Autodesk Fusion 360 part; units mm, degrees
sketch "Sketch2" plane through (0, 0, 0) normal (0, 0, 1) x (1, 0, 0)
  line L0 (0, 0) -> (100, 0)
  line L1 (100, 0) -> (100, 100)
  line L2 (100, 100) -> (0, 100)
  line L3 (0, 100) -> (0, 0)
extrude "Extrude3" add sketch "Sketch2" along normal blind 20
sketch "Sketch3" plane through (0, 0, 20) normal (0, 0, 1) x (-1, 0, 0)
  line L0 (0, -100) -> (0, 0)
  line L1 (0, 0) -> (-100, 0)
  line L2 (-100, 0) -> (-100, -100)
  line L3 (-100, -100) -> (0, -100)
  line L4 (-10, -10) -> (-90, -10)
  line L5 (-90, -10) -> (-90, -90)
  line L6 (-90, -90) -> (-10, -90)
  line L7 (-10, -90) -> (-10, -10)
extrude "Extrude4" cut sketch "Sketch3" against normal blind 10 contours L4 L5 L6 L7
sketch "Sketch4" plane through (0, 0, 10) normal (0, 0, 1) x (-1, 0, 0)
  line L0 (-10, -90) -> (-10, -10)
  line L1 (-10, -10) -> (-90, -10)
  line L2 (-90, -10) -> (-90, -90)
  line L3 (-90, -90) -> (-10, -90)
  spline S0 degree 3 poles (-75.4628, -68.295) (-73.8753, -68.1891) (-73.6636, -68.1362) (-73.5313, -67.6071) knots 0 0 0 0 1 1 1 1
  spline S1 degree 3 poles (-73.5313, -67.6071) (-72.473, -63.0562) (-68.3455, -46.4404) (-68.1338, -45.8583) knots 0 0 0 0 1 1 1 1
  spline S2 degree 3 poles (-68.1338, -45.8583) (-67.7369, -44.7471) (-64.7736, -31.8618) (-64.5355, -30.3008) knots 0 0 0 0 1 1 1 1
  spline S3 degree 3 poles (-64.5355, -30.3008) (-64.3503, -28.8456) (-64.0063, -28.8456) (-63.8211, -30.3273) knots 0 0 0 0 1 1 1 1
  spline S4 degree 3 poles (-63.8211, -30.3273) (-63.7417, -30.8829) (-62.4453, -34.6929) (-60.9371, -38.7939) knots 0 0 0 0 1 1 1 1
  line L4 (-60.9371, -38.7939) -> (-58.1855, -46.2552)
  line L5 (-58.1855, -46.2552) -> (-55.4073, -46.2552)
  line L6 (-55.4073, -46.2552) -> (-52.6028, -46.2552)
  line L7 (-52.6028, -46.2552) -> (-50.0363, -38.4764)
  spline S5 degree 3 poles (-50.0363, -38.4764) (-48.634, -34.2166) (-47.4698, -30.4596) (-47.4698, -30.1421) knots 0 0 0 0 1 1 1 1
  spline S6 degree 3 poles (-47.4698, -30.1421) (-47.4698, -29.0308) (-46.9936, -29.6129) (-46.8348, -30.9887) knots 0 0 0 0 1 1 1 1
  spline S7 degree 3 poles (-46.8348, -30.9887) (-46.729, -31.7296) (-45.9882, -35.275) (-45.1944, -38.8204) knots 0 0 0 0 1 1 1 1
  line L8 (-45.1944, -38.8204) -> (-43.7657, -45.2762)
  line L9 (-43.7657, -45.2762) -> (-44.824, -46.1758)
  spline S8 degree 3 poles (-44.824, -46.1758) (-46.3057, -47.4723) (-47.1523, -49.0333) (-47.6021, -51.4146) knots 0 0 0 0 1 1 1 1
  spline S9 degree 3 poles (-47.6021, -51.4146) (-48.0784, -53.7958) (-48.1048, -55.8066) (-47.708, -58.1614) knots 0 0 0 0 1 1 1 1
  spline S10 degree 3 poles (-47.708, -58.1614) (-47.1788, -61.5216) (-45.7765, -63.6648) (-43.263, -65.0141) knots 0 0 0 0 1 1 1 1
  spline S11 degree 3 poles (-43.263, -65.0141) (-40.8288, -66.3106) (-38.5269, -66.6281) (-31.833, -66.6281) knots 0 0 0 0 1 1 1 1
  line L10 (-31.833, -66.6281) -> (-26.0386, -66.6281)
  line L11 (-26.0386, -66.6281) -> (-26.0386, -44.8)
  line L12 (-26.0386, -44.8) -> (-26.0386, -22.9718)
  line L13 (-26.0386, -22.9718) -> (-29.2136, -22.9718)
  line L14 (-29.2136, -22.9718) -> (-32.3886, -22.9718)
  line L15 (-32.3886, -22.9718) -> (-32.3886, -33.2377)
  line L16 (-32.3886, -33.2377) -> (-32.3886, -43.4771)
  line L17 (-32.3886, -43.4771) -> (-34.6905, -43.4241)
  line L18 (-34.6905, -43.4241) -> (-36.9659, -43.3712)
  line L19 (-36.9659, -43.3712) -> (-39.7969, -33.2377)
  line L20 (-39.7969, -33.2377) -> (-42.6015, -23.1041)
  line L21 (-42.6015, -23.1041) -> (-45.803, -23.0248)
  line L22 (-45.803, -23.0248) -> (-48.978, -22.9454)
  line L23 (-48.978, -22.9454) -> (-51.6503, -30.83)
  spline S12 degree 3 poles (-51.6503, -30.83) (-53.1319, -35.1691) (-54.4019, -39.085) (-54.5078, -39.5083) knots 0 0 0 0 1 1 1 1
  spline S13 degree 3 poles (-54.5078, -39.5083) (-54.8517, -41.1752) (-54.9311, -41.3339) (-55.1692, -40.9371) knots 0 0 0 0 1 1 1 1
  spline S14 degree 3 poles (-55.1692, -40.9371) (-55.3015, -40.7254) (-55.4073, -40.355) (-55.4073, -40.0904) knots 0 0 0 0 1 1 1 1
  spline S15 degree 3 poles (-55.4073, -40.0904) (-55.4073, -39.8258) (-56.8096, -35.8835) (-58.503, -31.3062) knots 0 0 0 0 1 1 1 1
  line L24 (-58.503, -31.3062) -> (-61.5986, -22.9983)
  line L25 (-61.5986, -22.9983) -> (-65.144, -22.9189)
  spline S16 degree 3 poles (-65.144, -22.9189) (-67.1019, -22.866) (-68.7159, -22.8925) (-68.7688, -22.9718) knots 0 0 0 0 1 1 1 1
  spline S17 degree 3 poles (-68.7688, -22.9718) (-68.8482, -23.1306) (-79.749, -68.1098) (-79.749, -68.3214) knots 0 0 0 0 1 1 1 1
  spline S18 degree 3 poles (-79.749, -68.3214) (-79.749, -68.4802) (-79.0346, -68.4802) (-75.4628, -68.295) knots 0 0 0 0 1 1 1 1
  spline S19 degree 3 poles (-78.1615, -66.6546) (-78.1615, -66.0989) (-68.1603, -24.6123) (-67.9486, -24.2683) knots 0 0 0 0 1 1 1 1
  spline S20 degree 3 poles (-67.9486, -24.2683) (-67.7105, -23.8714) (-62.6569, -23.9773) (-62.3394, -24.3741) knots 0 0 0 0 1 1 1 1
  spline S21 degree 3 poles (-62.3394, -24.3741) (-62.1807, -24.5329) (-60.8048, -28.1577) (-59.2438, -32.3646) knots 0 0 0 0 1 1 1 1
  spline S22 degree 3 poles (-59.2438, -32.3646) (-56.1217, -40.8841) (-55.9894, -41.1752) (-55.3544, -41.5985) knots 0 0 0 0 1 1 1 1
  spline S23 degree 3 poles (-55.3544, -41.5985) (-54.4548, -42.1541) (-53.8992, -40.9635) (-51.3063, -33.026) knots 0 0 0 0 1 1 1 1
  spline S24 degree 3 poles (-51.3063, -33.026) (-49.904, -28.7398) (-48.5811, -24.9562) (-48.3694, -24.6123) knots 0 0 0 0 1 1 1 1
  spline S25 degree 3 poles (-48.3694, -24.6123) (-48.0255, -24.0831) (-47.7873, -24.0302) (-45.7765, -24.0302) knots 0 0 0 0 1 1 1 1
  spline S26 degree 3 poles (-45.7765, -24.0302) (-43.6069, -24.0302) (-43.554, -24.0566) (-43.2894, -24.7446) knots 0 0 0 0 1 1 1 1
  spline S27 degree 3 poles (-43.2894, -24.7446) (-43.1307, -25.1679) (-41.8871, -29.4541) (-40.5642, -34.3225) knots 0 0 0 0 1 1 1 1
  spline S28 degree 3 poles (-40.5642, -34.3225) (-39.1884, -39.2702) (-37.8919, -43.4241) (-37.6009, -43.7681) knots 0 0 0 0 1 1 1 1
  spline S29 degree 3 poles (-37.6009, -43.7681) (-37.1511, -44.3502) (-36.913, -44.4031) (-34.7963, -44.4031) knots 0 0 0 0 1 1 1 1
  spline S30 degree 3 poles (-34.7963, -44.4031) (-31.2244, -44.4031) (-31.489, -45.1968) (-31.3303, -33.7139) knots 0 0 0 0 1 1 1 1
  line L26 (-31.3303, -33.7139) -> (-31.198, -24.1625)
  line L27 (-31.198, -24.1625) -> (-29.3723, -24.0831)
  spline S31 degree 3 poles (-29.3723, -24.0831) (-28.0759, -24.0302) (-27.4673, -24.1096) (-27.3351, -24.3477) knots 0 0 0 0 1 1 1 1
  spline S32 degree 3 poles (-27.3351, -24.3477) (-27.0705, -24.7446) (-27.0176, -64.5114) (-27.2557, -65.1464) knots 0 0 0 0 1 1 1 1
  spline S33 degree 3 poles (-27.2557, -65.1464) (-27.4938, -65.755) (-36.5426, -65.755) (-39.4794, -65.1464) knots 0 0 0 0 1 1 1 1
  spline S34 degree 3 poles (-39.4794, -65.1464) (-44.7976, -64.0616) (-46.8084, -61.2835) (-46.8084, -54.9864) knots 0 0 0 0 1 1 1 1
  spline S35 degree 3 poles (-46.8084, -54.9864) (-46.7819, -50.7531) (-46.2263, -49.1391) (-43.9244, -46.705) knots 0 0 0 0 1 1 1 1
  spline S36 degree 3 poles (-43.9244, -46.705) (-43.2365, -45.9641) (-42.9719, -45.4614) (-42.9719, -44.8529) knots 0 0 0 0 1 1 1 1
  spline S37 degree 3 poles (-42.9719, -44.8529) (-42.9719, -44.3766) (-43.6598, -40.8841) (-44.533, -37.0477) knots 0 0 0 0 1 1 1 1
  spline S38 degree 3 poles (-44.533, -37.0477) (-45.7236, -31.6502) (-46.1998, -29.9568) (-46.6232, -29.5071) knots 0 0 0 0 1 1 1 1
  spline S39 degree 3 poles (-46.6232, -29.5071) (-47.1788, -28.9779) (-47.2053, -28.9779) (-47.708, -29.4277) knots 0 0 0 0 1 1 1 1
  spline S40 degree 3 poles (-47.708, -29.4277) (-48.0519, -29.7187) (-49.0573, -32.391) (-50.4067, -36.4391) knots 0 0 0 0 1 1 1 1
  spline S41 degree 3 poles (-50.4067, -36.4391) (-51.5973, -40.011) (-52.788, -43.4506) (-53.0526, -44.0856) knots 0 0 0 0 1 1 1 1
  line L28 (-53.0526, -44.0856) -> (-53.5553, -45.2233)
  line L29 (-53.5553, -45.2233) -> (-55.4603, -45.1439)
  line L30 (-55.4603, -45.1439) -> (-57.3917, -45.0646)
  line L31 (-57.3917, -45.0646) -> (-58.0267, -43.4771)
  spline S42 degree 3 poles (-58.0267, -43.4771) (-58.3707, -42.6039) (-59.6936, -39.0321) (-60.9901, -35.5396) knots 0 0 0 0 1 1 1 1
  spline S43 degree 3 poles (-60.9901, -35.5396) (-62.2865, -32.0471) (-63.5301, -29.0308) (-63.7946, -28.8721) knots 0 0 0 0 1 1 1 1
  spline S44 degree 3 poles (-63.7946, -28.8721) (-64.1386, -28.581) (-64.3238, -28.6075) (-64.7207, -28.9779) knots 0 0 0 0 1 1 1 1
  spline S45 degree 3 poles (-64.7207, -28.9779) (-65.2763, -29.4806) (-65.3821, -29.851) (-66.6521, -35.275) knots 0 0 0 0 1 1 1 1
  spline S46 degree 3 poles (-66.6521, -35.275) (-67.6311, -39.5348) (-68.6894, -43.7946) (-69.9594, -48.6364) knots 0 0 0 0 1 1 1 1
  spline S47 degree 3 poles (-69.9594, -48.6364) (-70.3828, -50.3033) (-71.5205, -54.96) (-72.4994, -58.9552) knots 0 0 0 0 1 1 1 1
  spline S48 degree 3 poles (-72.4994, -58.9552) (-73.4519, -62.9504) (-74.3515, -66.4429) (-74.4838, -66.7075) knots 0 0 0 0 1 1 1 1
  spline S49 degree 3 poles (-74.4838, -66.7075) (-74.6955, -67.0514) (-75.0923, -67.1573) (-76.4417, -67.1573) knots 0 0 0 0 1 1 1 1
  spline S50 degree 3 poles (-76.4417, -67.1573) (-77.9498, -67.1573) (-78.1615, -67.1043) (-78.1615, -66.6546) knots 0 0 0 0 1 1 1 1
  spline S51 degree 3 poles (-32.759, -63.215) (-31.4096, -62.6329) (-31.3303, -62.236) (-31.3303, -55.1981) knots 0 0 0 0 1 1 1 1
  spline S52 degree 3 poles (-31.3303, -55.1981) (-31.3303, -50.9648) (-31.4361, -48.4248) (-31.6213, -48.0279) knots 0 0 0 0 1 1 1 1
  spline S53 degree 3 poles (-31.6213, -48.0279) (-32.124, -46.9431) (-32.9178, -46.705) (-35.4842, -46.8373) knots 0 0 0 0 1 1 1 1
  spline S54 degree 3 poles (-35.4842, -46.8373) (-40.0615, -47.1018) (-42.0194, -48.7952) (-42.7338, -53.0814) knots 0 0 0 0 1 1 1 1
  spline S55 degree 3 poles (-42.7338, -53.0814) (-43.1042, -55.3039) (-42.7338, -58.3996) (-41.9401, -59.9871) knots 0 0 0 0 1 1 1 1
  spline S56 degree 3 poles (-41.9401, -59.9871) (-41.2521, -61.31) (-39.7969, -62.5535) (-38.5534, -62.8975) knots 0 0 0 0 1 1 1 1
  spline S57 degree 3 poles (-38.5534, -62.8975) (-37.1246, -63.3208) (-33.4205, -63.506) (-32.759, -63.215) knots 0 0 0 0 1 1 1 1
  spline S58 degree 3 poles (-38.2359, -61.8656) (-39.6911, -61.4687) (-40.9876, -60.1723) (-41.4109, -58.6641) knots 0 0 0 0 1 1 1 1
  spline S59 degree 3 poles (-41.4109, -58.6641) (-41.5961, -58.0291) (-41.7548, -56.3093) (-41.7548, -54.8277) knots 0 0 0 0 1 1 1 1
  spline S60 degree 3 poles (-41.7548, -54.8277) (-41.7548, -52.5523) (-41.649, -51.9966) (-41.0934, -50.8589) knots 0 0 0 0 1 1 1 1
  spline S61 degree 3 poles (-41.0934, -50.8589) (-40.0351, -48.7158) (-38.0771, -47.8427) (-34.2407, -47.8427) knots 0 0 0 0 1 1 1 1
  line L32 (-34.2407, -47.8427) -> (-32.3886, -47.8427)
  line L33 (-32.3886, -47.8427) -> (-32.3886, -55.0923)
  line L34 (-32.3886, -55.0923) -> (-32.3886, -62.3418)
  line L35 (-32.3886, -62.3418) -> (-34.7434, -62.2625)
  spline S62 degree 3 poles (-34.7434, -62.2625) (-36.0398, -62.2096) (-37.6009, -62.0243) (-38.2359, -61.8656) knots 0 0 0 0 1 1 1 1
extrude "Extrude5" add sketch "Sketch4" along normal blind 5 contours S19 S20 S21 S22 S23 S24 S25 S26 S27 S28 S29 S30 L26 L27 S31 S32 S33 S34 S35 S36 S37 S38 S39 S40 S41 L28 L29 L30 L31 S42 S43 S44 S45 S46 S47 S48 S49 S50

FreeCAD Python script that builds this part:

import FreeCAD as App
import Part
import Sketcher
from FreeCAD import Vector
Q = App.Units.Quantity

doc = App.newDocument("Part")
params = doc.addObject("Spreadsheet::Sheet", "Params")
for row, (alias, value) in enumerate([
    ("sketch1_width", "100 mm"),
    ("pad1_length", "20 mm"),
    ("sketch2_width", "80 mm"),
    ("pocket1_length", "10 mm"),
    ("pad2_length", "5 mm"),
], start=1):
    params.set(f"A{row}", alias)
    params.set(f"B{row}", "=" + value)
    params.setAlias(f"B{row}", alias)

body = doc.addObject("PartDesign::Body", "Body")

sketch1 = body.newObject("Sketcher::SketchObject", "Sketch")
sketch1.AttachmentSupport = (doc.getObject("XY_Plane"), [""])
sketch1.MapMode = "FlatFace"
sketch1.addGeometry(Part.LineSegment(Vector(0, 100, 0), Vector(0, 0, 0)), False)
sketch1.addGeometry(Part.LineSegment(Vector(0, 0, 0), Vector(100, 0, 0)), False)
sketch1.addGeometry(Part.LineSegment(Vector(100, 0, 0), Vector(100, 100, 0)), False)
sketch1.addGeometry(Part.LineSegment(Vector(100, 100, 0), Vector(0, 100, 0)), False)
sketch1.addConstraint(Sketcher.Constraint("Coincident", 0, 2, 1, 1))
sketch1.addConstraint(Sketcher.Constraint("Coincident", 1, 2, 2, 1))
sketch1.addConstraint(Sketcher.Constraint("Coincident", 2, 2, 3, 1))
sketch1.addConstraint(Sketcher.Constraint("Coincident", 3, 2, 0, 1))
sketch1.addConstraint(Sketcher.Constraint("Vertical", 0))
sketch1.addConstraint(Sketcher.Constraint("Horizontal", 1))
sketch1.addConstraint(Sketcher.Constraint("Vertical", 2))
sketch1.addConstraint(Sketcher.Constraint("Horizontal", 3))
sketch1.addConstraint(Sketcher.Constraint("Coincident", 0, 2, -1, 1))
sketch1.addConstraint(Sketcher.Constraint("Equal", 3, 0))
sketch1.addConstraint(Sketcher.Constraint("DistanceX", 1, 1, 1, 2, Q("100 mm")))
sketch1.setExpression("Constraints[10]", "Params.sketch1_width")
pad1 = body.newObject("PartDesign::Pad", "Pad")
pad1.Profile = sketch1
pad1.setExpression("Length", "Params.pad1_length")

sketch2 = body.newObject("Sketcher::SketchObject", "Sketch001")
sketch2.AttachmentSupport = (doc.getObject("XY_Plane"), [""])
sketch2.MapMode = "FlatFace"
sketch2.AttachmentOffset = App.Placement(Vector(0, 0, 20), App.Rotation())
sketch2.addGeometry(Part.LineSegment(Vector(10, 90, 0), Vector(10, 10, 0)), False)
sketch2.addGeometry(Part.LineSegment(Vector(10, 10, 0), Vector(90, 10, 0)), False)
sketch2.addGeometry(Part.LineSegment(Vector(90, 10, 0), Vector(90, 90, 0)), False)
sketch2.addGeometry(Part.LineSegment(Vector(90, 90, 0), Vector(10, 90, 0)), False)
sketch2.addConstraint(Sketcher.Constraint("Coincident", 0, 2, 1, 1))
sketch2.addConstraint(Sketcher.Constraint("Coincident", 1, 2, 2, 1))
sketch2.addConstraint(Sketcher.Constraint("Coincident", 2, 2, 3, 1))
sketch2.addConstraint(Sketcher.Constraint("Coincident", 3, 2, 0, 1))
sketch2.addConstraint(Sketcher.Constraint("Vertical", 0))
sketch2.addConstraint(Sketcher.Constraint("Horizontal", 1))
sketch2.addConstraint(Sketcher.Constraint("Vertical", 2))
sketch2.addConstraint(Sketcher.Constraint("Horizontal", 3))
sketch2.addConstraint(Sketcher.Constraint("Equal", 3, 0))
sketch2.addConstraint(Sketcher.Constraint("DistanceX", 1, 1, 1, 2, Q("80 mm")))
sketch2.addConstraint(Sketcher.Constraint("DistanceX", -1, 1, 0, 2, Q("10 mm")))
sketch2.addConstraint(Sketcher.Constraint("DistanceY", -1, 1, 0, 2, Q("10 mm")))
sketch2.setExpression("Constraints[9]", "Params.sketch2_width")
pocket1 = body.newObject("PartDesign::Pocket", "Pocket")
pocket1.Profile = sketch2
pocket1.setExpression("Length", "Params.pocket1_length")

sketch3 = body.newObject("Sketcher::SketchObject", "Sketch002")
sketch3.AttachmentSupport = (doc.getObject("XY_Plane"), [""])
sketch3.MapMode = "FlatFace"
sketch3.AttachmentOffset = App.Placement(Vector(0, 0, 10), App.Rotation())
sketch3.addGeometry(Part.BSplineCurve([Vector(78.1615, 66.6546, 0), Vector(78.1615, 66.0989, 0), Vector(68.1603, 24.6123, 0), Vector(67.9486, 24.2683, 0)], [4, 4], [0, 1], False, 3, [1, 1, 1, 1], False), False)
sketch3.addGeometry(Part.BSplineCurve([Vector(76.4417, 67.1573, 0), Vector(77.9498, 67.1573, 0), Vector(78.1615, 67.1043, 0), Vector(78.1615, 66.6546, 0)], [4, 4], [0, 1], False, 3, [1, 1, 1, 1], False), False)
sketch3.addGeometry(Part.BSplineCurve([Vector(74.4838, 66.7075, 0), Vector(74.6955, 67.0514, 0), Vector(75.0923, 67.1573, 0), Vector(76.4417, 67.1573, 0)], [4, 4], [0, 1], False, 3, [1, 1, 1, 1], False), False)
sketch3.addGeometry(Part.BSplineCurve([Vector(72.4994, 58.9552, 0), Vector(73.4519, 62.9504, 0), Vector(74.3515, 66.4429, 0), Vector(74.4838, 66.7075, 0)], [4, 4], [0, 1], False, 3, [1, 1, 1, 1], False), False)
sketch3.addGeometry(Part.BSplineCurve([Vector(69.9594, 48.6364, 0), Vector(70.3828, 50.3033, 0), Vector(71.5205, 54.96, 0), Vector(72.4994, 58.9552, 0)], [4, 4], [0, 1], False, 3, [1, 1, 1, 1], False), False)
sketch3.addGeometry(Part.BSplineCurve([Vector(66.6521, 35.275, 0), Vector(67.6311, 39.5348, 0), Vector(68.6894, 43.7946, 0), Vector(69.9594, 48.6364, 0)], [4, 4], [0, 1], False, 3, [1, 1, 1, 1], False), False)
sketch3.addGeometry(Part.BSplineCurve([Vector(64.7207, 28.9779, 0), Vector(65.2763, 29.4806, 0), Vector(65.3821, 29.851, 0), Vector(66.6521, 35.275, 0)], [4, 4], [0, 1], False, 3, [1, 1, 1, 1], False), False)
sketch3.addGeometry(Part.BSplineCurve([Vector(63.7946, 28.8721, 0), Vector(64.1386, 28.581, 0), Vector(64.3238, 28.6075, 0), Vector(64.7207, 28.9779, 0)], [4, 4], [0, 1], False, 3, [1, 1, 1, 1], False), False)
sketch3.addGeometry(Part.BSplineCurve([Vector(60.9901, 35.5396, 0), Vector(62.2865, 32.0471, 0), Vector(63.5301, 29.0308, 0), Vector(63.7946, 28.8721, 0)], [4, 4], [0, 1], False, 3, [1, 1, 1, 1], False), False)
sketch3.addGeometry(Part.BSplineCurve([Vector(58.0267, 43.4771, 0), Vector(58.3707, 42.6039, 0), Vector(59.6936, 39.0321, 0), Vector(60.9901, 35.5396, 0)], [4, 4], [0, 1], False, 3, [1, 1, 1, 1], False), False)
sketch3.addGeometry(Part.LineSegment(Vector(58.0267, 43.4771, 0), Vector(57.3917, 45.0646, 0)), False)
sketch3.addGeometry(Part.LineSegment(Vector(57.3917, 45.0646, 0), Vector(55.4603, 45.1439, 0)), False)
sketch3.addGeometry(Part.LineSegment(Vector(55.4603, 45.1439, 0), Vector(53.5553, 45.2233, 0)), False)
sketch3.addGeometry(Part.LineSegment(Vector(53.5553, 45.2233, 0), Vector(53.0526, 44.0856, 0)), False)
sketch3.addGeometry(Part.BSplineCurve([Vector(50.4067, 36.4391, 0), Vector(51.5973, 40.011, 0), Vector(52.788, 43.4506, 0), Vector(53.0526, 44.0856, 0)], [4, 4], [0, 1], False, 3, [1, 1, 1, 1], False), False)
sketch3.addGeometry(Part.BSplineCurve([Vector(47.708, 29.4277, 0), Vector(48.0519, 29.7187, 0), Vector(49.0573, 32.391, 0), Vector(50.4067, 36.4391, 0)], [4, 4], [0, 1], False, 3, [1, 1, 1, 1], False), False)
sketch3.addGeometry(Part.BSplineCurve([Vector(46.6232, 29.5071, 0), Vector(47.1788, 28.9779, 0), Vector(47.2053, 28.9779, 0), Vector(47.708, 29.4277, 0)], [4, 4], [0, 1], False, 3, [1, 1, 1, 1], False), False)
sketch3.addGeometry(Part.BSplineCurve([Vector(44.533, 37.0477, 0), Vector(45.7236, 31.6502, 0), Vector(46.1998, 29.9568, 0), Vector(46.6232, 29.5071, 0)], [4, 4], [0, 1], False, 3, [1, 1, 1, 1], False), False)
sketch3.addGeometry(Part.BSplineCurve([Vector(42.9719, 44.8529, 0), Vector(42.9719, 44.3766, 0), Vector(43.6598, 40.8841, 0), Vector(44.533, 37.0477, 0)], [4, 4], [0, 1], False, 3, [1, 1, 1, 1], False), False)
sketch3.addGeometry(Part.BSplineCurve([Vector(43.9244, 46.705, 0), Vector(43.2365, 45.9641, 0), Vector(42.9719, 45.4614, 0), Vector(42.9719, 44.8529, 0)], [4, 4], [0, 1], False, 3, [1, 1, 1, 1], False), False)
sketch3.addGeometry(Part.BSplineCurve([Vector(46.8084, 54.9864, 0), Vector(46.7819, 50.7531, 0), Vector(46.2263, 49.1391, 0), Vector(43.9244, 46.705, 0)], [4, 4], [0, 1], False, 3, [1, 1, 1, 1], False), False)
sketch3.addGeometry(Part.BSplineCurve([Vector(39.4794, 65.1464, 0), Vector(44.7976, 64.0616, 0), Vector(46.8084, 61.2835, 0), Vector(46.8084, 54.9864, 0)], [4, 4], [0, 1], False, 3, [1, 1, 1, 1], False), False)
sketch3.addGeometry(Part.BSplineCurve([Vector(27.2557, 65.1464, 0), Vector(27.4938, 65.755, 0), Vector(36.5426, 65.755, 0), Vector(39.4794, 65.1464, 0)], [4, 4], [0, 1], False, 3, [1, 1, 1, 1], False), False)
sketch3.addGeometry(Part.BSplineCurve([Vector(27.3351, 24.3477, 0), Vector(27.0705, 24.7446, 0), Vector(27.0176, 64.5114, 0), Vector(27.2557, 65.1464, 0)], [4, 4], [0, 1], False, 3, [1, 1, 1, 1], False), False)
sketch3.addGeometry(Part.BSplineCurve([Vector(29.3723, 24.0831, 0), Vector(28.0759, 24.0302, 0), Vector(27.4673, 24.1096, 0), Vector(27.3351, 24.3477, 0)], [4, 4], [0, 1], False, 3, [1, 1, 1, 1], False), False)
sketch3.addGeometry(Part.LineSegment(Vector(29.3723, 24.0831, 0), Vector(31.198, 24.1625, 0)), False)
sketch3.addGeometry(Part.LineSegment(Vector(31.198, 24.1625, 0), Vector(31.3303, 33.7139, 0)), False)
sketch3.addGeometry(Part.BSplineCurve([Vector(34.7963, 44.4031, 0), Vector(31.2244, 44.4031, 0), Vector(31.489, 45.1968, 0), Vector(31.3303, 33.7139, 0)], [4, 4], [0, 1], False, 3, [1, 1, 1, 1], False), False)
sketch3.addGeometry(Part.BSplineCurve([Vector(37.6009, 43.7681, 0), Vector(37.1511, 44.3502, 0), Vector(36.913, 44.4031, 0), Vector(34.7963, 44.4031, 0)], [4, 4], [0, 1], False, 3, [1, 1, 1, 1], False), False)
sketch3.addGeometry(Part.BSplineCurve([Vector(40.5642, 34.3225, 0), Vector(39.1884, 39.2702, 0), Vector(37.8919, 43.4241, 0), Vector(37.6009, 43.7681, 0)], [4, 4], [0, 1], False, 3, [1, 1, 1, 1], False), False)
sketch3.addGeometry(Part.BSplineCurve([Vector(43.2894, 24.7446, 0), Vector(43.1307, 25.1679, 0), Vector(41.8871, 29.4541, 0), Vector(40.5642, 34.3225, 0)], [4, 4], [0, 1], False, 3, [1, 1, 1, 1], False), False)
sketch3.addGeometry(Part.BSplineCurve([Vector(45.7765, 24.0302, 0), Vector(43.6069, 24.0302, 0), Vector(43.554, 24.0566, 0), Vector(43.2894, 24.7446, 0)], [4, 4], [0, 1], False, 3, [1, 1, 1, 1], False), False)
sketch3.addGeometry(Part.BSplineCurve([Vector(48.3694, 24.6123, 0), Vector(48.0255, 24.0831, 0), Vector(47.7873, 24.0302, 0), Vector(45.7765, 24.0302, 0)], [4, 4], [0, 1], False, 3, [1, 1, 1, 1], False), False)
sketch3.addGeometry(Part.BSplineCurve([Vector(51.3063, 33.026, 0), Vector(49.904, 28.7398, 0), Vector(48.5811, 24.9562, 0), Vector(48.3694, 24.6123, 0)], [4, 4], [0, 1], False, 3, [1, 1, 1, 1], False), False)
sketch3.addGeometry(Part.BSplineCurve([Vector(55.3544, 41.5985, 0), Vector(54.4548, 42.1541, 0), Vector(53.8992, 40.9635, 0), Vector(51.3063, 33.026, 0)], [4, 4], [0, 1], False, 3, [1, 1, 1, 1], False), False)
sketch3.addGeometry(Part.BSplineCurve([Vector(59.2438, 32.3646, 0), Vector(56.1217, 40.8841, 0), Vector(55.9894, 41.1752, 0), Vector(55.3544, 41.5985, 0)], [4, 4], [0, 1], False, 3, [1, 1, 1, 1], False), False)
sketch3.addGeometry(Part.BSplineCurve([Vector(62.3394, 24.3741, 0), Vector(62.1807, 24.5329, 0), Vector(60.8048, 28.1577, 0), Vector(59.2438, 32.3646, 0)], [4, 4], [0, 1], False, 3, [1, 1, 1, 1], False), False)
sketch3.addGeometry(Part.BSplineCurve([Vector(67.9486, 24.2683, 0), Vector(67.7105, 23.8714, 0), Vector(62.6569, 23.9773, 0), Vector(62.3394, 24.3741, 0)], [4, 4], [0, 1], False, 3, [1, 1, 1, 1], False), False)
sketch3.addGeometry(Part.BSplineCurve([Vector(32.759, 63.215, 0), Vector(31.4096, 62.6329, 0), Vector(31.3303, 62.236, 0), Vector(31.3303, 55.1981, 0)], [4, 4], [0, 1], False, 3, [1, 1, 1, 1], False), False)
sketch3.addGeometry(Part.BSplineCurve([Vector(38.5534, 62.8975, 0), Vector(37.1246, 63.3208, 0), Vector(33.4205, 63.506, 0), Vector(32.759, 63.215, 0)], [4, 4], [0, 1], False, 3, [1, 1, 1, 1], False), False)
sketch3.addGeometry(Part.BSplineCurve([Vector(41.9401, 59.9871, 0), Vector(41.2521, 61.31, 0), Vector(39.7969, 62.5535, 0), Vector(38.5534, 62.8975, 0)], [4, 4], [0, 1], False, 3, [1, 1, 1, 1], False), False)
sketch3.addGeometry(Part.BSplineCurve([Vector(42.7338, 53.0814, 0), Vector(43.1042, 55.3039, 0), Vector(42.7338, 58.3996, 0), Vector(41.9401, 59.9871, 0)], [4, 4], [0, 1], False, 3, [1, 1, 1, 1], False), False)
sketch3.addGeometry(Part.BSplineCurve([Vector(35.4842, 46.8373, 0), Vector(40.0615, 47.1018, 0), Vector(42.0194, 48.7952, 0), Vector(42.7338, 53.0814, 0)], [4, 4], [0, 1], False, 3, [1, 1, 1, 1], False), False)
sketch3.addGeometry(Part.BSplineCurve([Vector(31.6213, 48.0279, 0), Vector(32.124, 46.9431, 0), Vector(32.9178, 46.705, 0), Vector(35.4842, 46.8373, 0)], [4, 4], [0, 1], False, 3, [1, 1, 1, 1], False), False)
sketch3.addGeometry(Part.BSplineCurve([Vector(31.3303, 55.1981, 0), Vector(31.3303, 50.9648, 0), Vector(31.4361, 48.4248, 0), Vector(31.6213, 48.0279, 0)], [4, 4], [0, 1], False, 3, [1, 1, 1, 1], False), False)
sketch3.addConstraint(Sketcher.Constraint("Block", 0))
sketch3.addConstraint(Sketcher.Constraint("Block", 1))
sketch3.addConstraint(Sketcher.Constraint("Block", 2))
sketch3.addConstraint(Sketcher.Constraint("Block", 3))
sketch3.addConstraint(Sketcher.Constraint("Block", 4))
sketch3.addConstraint(Sketcher.Constraint("Block", 5))
sketch3.addConstraint(Sketcher.Constraint("Block", 6))
sketch3.addConstraint(Sketcher.Constraint("Block", 7))
sketch3.addConstraint(Sketcher.Constraint("Block", 8))
sketch3.addConstraint(Sketcher.Constraint("Block", 9))
sketch3.addConstraint(Sketcher.Constraint("Block", 14))
sketch3.addConstraint(Sketcher.Constraint("Block", 15))
sketch3.addConstraint(Sketcher.Constraint("Block", 16))
sketch3.addConstraint(Sketcher.Constraint("Block", 17))
sketch3.addConstraint(Sketcher.Constraint("Block", 18))
sketch3.addConstraint(Sketcher.Constraint("Block", 19))
sketch3.addConstraint(Sketcher.Constraint("Block", 20))
sketch3.addConstraint(Sketcher.Constraint("Block", 21))
sketch3.addConstraint(Sketcher.Constraint("Block", 22))
sketch3.addConstraint(Sketcher.Constraint("Block", 23))
sketch3.addConstraint(Sketcher.Constraint("Block", 24))
sketch3.addConstraint(Sketcher.Constraint("Block", 27))
sketch3.addConstraint(Sketcher.Constraint("Block", 28))
sketch3.addConstraint(Sketcher.Constraint("Block", 29))
sketch3.addConstraint(Sketcher.Constraint("Block", 30))
sketch3.addConstraint(Sketcher.Constraint("Block", 31))
sketch3.addConstraint(Sketcher.Constraint("Block", 32))
sketch3.addConstraint(Sketcher.Constraint("Block", 33))
sketch3.addConstraint(Sketcher.Constraint("Block", 34))
sketch3.addConstraint(Sketcher.Constraint("Block", 35))
sketch3.addConstraint(Sketcher.Constraint("Block", 36))
sketch3.addConstraint(Sketcher.Constraint("Block", 37))
sketch3.addConstraint(Sketcher.Constraint("Block", 38))
sketch3.addConstraint(Sketcher.Constraint("Block", 39))
sketch3.addConstraint(Sketcher.Constraint("Block", 40))
sketch3.addConstraint(Sketcher.Constraint("Block", 41))
sketch3.addConstraint(Sketcher.Constraint("Block", 42))
sketch3.addConstraint(Sketcher.Constraint("Block", 43))
sketch3.addConstraint(Sketcher.Constraint("Block", 44))
sketch3.addConstraint(Sketcher.Constraint("Coincident", 9, 1, 10, 1))
sketch3.addConstraint(Sketcher.Constraint("Coincident", 10, 2, 11, 1))
sketch3.addConstraint(Sketcher.Constraint("Coincident", 11, 2, 12, 1))
sketch3.addConstraint(Sketcher.Constraint("Coincident", 12, 2, 13, 1))
sketch3.addConstraint(Sketcher.Constraint("Coincident", 13, 2, 14, 2))
sketch3.addConstraint(Sketcher.Constraint("Coincident", 24, 1, 25, 1))
sketch3.addConstraint(Sketcher.Constraint("Coincident", 25, 2, 26, 1))
sketch3.addConstraint(Sketcher.Constraint("Coincident", 26, 2, 27, 2))
sketch3.addConstraint(Sketcher.Constraint("Angle", 11, Q("177.6489 deg")))
sketch3.addConstraint(Sketcher.Constraint("Angle", 25, Q("2.4902 deg")))
sketch3.addConstraint(Sketcher.Constraint("DistanceX", 26, 2, 11, 2, Q("24.13 mm")))
sketch3.addConstraint(Sketcher.Constraint("DistanceY", 26, 2, 11, 2, Q("11.43 mm")))
sketch3.addConstraint(Sketcher.Constraint("Distance", 11, Q("1.933 mm")))
sketch3.addConstraint(Sketcher.Constraint("DistanceX", -1, 1, 25, 2, Q("31.198 mm")))
sketch3.addConstraint(Sketcher.Constraint("DistanceX", 12, 2, 11, 2, Q("1.905 mm")))
sketch3.addConstraint(Sketcher.Constraint("Distance", 12, Q("1.9067 mm")))
pad2 = body.newObject("PartDesign::Pad", "Pad001")
pad2.Profile = sketch3
pad2.setExpression("Length", "Params.pad2_length")

doc.recompute()
